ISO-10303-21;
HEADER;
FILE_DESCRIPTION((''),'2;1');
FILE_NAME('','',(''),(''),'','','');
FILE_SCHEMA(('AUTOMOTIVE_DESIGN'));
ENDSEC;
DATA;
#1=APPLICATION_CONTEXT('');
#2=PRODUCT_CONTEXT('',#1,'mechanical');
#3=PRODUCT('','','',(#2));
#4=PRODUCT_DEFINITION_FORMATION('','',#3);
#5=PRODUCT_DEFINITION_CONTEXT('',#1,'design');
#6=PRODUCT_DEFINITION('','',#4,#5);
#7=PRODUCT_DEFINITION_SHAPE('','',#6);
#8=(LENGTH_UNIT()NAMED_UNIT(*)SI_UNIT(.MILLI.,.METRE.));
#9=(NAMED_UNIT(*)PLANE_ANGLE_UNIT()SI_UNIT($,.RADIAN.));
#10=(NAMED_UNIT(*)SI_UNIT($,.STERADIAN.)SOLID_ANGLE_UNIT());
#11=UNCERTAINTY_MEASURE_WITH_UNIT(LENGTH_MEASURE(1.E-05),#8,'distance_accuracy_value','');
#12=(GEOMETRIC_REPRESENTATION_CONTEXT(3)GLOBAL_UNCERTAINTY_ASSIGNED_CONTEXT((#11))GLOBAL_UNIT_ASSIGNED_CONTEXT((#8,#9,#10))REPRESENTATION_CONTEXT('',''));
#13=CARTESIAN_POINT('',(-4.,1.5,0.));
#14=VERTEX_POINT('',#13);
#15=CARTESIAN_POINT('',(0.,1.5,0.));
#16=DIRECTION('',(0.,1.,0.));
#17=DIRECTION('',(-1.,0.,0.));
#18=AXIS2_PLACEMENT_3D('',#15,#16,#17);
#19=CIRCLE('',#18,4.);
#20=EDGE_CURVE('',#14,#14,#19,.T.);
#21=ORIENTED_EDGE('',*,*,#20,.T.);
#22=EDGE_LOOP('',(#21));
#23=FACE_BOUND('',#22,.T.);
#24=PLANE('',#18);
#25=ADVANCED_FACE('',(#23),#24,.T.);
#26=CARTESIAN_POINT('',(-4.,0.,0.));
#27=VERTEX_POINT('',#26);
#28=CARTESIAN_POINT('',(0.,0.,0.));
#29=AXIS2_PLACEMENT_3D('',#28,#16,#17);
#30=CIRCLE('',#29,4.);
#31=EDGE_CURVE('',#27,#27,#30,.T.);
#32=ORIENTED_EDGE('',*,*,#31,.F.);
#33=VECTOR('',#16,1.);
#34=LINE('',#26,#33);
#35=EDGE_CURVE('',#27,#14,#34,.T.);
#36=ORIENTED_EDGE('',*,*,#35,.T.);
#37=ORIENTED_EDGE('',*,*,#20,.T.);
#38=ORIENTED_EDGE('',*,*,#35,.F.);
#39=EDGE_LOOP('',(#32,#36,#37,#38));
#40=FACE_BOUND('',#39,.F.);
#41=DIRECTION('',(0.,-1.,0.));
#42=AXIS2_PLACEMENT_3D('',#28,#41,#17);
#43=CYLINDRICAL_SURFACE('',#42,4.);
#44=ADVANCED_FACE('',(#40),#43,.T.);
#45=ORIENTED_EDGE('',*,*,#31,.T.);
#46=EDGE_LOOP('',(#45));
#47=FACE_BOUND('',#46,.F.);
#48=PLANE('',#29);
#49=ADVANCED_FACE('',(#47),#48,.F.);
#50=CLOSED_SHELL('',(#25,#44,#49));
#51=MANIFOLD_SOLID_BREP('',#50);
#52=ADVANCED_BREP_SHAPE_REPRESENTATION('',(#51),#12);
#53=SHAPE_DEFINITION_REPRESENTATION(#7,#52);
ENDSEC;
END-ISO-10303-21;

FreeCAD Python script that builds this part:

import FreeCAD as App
import Part
import Sketcher

V = App.Vector

doc = App.newDocument("Part")
body = doc.addObject("PartDesign::Body", "Body")

# Sketch on XZ plane
sketch1 = body.newObject("Sketcher::SketchObject", "Sketch")
sketch1.AttachmentSupport = (doc.getObject("XZ_Plane"), [""])
sketch1.MapMode = "FlatFace"
sketch1.addGeometry(Part.Circle(V(0, 0, 0), V(0, 0, 1), 4), False)
sketch1.addConstraint([
    Sketcher.Constraint("Coincident", 0, 3, -1, 1),
    Sketcher.Constraint("Diameter", 0, 8.0),
])
pad1 = body.newObject("PartDesign::Pad", "Pad")
pad1.Profile = sketch1
pad1.Length = 1.5
pad1.Reversed = True

doc.recompute()
